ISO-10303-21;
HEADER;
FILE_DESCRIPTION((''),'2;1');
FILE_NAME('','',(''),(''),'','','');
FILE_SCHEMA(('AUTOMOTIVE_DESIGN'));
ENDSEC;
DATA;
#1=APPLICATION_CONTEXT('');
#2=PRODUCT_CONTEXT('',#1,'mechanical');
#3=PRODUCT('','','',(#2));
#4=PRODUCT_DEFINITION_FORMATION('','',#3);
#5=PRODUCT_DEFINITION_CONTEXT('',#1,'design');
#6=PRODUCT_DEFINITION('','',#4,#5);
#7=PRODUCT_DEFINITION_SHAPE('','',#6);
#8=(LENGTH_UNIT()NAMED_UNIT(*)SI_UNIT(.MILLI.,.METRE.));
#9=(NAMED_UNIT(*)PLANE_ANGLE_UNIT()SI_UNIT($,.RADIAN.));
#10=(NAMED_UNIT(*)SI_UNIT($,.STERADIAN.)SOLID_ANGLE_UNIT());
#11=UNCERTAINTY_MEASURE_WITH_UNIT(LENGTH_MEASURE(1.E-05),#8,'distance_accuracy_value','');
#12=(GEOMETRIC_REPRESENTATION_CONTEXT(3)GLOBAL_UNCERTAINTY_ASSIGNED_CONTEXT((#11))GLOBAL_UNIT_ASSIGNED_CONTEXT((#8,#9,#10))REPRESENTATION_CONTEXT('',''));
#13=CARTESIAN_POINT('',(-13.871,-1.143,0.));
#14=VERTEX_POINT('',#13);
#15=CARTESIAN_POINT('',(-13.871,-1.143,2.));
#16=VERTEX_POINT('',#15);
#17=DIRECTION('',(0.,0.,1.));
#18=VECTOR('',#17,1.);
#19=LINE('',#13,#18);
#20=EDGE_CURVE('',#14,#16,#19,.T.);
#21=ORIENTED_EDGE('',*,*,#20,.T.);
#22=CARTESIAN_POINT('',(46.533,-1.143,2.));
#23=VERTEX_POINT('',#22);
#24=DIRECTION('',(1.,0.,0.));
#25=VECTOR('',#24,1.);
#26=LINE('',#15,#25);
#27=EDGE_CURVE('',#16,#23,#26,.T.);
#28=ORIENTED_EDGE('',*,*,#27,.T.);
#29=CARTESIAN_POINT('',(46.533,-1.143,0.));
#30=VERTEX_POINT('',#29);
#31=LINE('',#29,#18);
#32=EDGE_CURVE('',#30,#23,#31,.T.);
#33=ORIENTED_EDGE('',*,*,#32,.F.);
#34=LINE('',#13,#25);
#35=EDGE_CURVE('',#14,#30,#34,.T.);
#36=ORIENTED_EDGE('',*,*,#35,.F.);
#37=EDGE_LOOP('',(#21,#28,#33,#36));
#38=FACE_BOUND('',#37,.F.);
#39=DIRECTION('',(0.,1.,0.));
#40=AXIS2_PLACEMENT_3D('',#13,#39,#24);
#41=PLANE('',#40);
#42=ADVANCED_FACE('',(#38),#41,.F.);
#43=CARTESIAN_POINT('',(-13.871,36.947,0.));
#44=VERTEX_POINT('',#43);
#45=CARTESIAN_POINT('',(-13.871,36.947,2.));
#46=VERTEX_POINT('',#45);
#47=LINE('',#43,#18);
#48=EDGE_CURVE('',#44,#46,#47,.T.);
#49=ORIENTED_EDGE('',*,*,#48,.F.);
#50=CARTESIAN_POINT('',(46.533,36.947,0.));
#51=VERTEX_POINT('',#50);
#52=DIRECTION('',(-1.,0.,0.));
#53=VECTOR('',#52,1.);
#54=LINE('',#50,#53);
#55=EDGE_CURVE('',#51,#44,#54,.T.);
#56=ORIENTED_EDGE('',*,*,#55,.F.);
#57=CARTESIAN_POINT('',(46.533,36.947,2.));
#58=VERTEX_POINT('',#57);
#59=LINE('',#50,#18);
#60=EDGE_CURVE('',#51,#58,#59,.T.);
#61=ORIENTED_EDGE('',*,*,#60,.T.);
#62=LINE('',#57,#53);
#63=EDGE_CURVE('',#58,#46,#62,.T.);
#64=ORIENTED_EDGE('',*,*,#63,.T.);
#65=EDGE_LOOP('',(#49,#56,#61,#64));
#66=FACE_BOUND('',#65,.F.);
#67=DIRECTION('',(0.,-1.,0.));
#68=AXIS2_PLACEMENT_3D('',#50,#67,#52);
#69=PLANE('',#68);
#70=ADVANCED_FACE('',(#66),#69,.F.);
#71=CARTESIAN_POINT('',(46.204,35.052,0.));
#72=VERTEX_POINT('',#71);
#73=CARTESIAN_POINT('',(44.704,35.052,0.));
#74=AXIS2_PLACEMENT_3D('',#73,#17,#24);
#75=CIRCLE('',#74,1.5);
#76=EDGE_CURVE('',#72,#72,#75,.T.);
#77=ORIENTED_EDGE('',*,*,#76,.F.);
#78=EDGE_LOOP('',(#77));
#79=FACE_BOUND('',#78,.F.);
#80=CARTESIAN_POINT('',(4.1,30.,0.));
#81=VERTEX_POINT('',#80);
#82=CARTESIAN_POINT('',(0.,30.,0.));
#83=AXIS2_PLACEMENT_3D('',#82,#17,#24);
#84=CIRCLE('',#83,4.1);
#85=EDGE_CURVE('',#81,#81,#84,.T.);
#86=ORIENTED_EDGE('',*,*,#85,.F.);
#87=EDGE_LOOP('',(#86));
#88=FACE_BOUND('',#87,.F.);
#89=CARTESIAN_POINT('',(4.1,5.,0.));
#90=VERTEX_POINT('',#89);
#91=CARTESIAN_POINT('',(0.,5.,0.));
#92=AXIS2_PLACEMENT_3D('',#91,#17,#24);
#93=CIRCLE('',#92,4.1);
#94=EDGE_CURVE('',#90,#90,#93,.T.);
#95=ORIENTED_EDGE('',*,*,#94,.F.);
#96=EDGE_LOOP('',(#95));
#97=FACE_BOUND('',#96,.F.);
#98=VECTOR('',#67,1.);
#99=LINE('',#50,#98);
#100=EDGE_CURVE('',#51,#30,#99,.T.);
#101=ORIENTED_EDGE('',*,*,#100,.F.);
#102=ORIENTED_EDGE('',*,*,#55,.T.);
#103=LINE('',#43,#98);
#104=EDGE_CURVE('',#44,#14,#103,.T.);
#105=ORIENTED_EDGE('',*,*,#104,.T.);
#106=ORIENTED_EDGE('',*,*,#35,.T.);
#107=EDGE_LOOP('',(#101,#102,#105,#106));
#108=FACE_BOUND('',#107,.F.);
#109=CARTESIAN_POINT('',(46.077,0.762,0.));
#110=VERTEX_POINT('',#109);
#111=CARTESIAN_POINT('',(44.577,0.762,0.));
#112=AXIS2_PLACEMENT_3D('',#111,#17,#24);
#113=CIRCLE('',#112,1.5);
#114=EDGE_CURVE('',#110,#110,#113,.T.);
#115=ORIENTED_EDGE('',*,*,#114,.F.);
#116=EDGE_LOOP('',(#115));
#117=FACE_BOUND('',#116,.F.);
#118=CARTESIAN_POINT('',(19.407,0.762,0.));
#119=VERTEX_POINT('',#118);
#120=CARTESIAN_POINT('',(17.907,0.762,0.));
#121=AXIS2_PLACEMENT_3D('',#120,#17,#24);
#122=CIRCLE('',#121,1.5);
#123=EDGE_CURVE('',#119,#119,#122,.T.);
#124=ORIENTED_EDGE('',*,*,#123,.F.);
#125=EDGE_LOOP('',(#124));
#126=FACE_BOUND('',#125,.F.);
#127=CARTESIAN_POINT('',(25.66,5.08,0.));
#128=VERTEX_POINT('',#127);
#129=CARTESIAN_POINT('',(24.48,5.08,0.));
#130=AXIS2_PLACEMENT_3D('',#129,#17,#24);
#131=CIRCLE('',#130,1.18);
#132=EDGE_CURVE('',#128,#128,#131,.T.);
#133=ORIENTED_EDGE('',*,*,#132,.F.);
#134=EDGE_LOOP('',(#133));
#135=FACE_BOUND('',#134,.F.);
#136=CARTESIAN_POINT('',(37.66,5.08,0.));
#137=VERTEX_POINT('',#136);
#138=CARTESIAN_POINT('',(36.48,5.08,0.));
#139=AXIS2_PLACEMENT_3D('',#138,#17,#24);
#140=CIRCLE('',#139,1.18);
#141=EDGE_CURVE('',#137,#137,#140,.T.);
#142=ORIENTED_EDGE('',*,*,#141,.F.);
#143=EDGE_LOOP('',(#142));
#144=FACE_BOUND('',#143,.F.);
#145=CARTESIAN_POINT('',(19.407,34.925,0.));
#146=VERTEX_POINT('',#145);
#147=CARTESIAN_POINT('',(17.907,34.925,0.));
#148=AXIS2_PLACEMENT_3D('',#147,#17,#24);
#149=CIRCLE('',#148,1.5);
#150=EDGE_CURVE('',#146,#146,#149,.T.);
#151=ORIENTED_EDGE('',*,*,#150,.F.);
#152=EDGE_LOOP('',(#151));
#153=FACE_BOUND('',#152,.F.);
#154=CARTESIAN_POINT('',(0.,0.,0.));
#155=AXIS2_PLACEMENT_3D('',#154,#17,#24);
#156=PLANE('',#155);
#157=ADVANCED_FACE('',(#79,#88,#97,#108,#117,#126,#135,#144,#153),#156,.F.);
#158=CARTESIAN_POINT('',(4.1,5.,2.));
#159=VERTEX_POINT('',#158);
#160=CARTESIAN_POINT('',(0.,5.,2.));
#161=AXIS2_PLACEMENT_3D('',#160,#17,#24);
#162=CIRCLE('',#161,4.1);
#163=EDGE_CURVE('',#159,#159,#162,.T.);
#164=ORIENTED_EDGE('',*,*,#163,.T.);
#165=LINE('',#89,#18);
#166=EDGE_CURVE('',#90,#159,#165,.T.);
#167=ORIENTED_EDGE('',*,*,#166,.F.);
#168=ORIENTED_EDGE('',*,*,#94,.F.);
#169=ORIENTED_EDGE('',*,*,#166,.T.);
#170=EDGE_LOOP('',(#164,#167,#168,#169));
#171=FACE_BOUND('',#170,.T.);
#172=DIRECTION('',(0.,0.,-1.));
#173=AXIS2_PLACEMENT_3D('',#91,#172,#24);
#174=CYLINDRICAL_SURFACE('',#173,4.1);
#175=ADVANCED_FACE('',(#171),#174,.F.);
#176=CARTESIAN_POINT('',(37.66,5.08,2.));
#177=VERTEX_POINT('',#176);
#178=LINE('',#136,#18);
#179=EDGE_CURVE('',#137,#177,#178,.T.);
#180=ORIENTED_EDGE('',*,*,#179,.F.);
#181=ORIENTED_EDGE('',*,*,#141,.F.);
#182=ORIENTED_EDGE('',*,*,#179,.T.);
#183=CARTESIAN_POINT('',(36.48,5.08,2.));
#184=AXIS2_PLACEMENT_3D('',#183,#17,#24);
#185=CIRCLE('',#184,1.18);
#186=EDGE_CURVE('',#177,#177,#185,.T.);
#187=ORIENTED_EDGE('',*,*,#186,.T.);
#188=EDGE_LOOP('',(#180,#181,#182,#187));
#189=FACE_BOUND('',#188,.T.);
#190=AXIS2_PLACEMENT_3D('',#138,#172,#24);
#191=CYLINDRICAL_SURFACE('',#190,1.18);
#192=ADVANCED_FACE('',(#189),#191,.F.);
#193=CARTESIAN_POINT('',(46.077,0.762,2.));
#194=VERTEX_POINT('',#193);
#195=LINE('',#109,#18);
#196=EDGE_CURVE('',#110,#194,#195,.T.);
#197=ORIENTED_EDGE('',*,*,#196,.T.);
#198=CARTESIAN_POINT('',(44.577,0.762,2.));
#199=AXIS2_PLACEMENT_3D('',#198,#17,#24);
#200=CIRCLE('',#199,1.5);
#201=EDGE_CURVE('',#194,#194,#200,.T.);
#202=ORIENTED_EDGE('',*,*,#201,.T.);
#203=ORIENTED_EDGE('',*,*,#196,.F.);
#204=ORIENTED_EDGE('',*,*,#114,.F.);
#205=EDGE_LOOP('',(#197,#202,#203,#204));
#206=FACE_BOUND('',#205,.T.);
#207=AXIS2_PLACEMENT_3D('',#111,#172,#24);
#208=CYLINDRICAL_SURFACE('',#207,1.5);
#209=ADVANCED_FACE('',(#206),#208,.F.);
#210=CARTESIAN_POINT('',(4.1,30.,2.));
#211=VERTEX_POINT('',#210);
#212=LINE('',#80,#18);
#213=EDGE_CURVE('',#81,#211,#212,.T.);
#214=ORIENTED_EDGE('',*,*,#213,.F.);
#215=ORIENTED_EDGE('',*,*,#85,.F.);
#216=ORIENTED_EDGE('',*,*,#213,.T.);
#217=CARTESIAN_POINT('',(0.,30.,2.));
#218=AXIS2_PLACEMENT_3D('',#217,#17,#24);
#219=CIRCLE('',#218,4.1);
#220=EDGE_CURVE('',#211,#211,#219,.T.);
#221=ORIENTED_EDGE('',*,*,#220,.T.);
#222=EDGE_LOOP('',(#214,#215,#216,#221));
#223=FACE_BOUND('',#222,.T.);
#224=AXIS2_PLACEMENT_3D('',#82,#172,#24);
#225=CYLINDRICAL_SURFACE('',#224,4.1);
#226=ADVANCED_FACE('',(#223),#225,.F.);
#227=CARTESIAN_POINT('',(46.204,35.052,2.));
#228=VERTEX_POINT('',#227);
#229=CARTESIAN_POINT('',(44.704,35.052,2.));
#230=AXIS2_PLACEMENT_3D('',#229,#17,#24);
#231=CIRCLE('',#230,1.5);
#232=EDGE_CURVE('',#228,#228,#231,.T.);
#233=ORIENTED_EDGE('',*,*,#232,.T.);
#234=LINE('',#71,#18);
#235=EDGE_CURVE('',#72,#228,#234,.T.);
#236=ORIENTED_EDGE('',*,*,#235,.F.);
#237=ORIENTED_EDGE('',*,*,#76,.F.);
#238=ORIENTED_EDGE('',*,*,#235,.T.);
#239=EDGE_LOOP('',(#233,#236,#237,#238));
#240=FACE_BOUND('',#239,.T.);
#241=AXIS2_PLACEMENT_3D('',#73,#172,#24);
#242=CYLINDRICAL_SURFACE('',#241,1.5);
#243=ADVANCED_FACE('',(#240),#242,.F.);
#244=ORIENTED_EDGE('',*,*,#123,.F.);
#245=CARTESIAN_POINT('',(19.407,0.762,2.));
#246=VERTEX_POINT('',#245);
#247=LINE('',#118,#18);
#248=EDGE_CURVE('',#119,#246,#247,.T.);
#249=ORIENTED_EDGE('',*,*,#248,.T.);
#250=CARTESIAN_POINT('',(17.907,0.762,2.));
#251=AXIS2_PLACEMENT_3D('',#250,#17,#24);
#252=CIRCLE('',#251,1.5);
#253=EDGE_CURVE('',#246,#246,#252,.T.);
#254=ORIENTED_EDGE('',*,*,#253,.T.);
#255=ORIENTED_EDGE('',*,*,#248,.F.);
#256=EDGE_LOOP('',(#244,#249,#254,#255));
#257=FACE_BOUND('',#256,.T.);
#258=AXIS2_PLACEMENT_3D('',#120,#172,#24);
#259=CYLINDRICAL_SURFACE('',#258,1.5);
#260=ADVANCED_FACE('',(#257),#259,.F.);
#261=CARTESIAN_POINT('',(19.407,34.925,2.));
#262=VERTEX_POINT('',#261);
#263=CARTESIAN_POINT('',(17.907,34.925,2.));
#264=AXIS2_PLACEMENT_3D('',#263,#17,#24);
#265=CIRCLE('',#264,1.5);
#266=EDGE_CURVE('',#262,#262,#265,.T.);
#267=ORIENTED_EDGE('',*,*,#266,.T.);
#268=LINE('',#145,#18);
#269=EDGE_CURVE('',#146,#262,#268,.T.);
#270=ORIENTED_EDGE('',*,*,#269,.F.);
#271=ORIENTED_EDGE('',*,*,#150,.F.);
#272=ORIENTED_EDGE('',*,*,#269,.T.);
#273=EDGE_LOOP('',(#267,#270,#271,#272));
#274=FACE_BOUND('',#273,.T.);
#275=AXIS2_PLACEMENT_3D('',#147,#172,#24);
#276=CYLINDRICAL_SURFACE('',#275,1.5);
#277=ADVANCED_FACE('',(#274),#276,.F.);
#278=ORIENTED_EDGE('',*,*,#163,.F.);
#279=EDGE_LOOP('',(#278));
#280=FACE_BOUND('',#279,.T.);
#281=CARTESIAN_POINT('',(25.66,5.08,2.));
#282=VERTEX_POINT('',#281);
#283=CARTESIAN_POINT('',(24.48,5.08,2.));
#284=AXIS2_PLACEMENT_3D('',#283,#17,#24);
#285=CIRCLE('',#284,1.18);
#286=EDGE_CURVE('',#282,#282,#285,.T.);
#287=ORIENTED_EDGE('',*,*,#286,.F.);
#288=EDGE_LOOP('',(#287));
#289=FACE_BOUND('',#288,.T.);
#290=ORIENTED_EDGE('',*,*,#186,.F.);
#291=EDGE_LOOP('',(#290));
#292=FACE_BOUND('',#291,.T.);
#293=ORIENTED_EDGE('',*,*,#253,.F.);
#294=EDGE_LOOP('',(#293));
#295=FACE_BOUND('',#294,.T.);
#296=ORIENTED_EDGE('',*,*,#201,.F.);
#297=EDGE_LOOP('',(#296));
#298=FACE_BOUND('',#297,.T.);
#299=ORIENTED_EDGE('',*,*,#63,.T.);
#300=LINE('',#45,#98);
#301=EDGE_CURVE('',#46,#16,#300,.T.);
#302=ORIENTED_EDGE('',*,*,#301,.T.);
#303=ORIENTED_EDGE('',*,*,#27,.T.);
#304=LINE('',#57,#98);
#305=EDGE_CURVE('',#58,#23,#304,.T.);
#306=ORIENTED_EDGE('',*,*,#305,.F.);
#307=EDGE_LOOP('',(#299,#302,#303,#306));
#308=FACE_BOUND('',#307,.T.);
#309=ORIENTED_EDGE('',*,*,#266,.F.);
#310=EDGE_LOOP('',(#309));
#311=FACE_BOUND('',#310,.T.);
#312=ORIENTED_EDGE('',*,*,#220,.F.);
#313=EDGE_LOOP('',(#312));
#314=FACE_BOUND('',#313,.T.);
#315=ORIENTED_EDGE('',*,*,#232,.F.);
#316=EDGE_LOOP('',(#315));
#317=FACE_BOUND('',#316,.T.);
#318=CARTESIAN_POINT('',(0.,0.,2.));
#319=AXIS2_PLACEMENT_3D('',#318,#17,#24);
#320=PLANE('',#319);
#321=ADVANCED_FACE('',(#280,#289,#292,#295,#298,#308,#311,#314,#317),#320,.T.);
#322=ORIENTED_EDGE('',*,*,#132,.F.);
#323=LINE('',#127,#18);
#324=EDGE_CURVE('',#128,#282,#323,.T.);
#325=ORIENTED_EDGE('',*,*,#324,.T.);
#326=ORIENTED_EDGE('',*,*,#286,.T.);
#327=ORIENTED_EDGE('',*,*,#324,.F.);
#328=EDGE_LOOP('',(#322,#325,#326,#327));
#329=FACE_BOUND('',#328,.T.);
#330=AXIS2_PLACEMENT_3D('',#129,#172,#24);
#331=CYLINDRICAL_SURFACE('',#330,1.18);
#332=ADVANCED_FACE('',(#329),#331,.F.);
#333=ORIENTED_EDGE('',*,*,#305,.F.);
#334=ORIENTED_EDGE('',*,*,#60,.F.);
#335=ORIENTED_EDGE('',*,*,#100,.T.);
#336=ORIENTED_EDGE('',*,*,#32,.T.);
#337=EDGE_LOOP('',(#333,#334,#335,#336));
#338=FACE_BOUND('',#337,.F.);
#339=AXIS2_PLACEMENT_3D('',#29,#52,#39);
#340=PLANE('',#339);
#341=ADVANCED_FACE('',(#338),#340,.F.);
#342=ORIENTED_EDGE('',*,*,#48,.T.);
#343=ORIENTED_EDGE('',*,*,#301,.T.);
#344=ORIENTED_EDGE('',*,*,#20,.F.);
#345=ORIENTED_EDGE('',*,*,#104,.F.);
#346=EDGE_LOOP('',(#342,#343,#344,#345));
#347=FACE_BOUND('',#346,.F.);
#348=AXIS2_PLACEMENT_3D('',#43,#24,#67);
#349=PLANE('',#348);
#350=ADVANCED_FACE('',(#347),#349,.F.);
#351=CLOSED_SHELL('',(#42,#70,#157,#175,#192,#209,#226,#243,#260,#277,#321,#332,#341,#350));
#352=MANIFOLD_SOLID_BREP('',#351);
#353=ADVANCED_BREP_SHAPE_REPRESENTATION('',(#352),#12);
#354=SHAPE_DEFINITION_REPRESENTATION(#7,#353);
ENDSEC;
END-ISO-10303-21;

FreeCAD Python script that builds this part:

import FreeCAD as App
import Part
import Sketcher

V = App.Vector
Q = App.Units.Quantity

doc = App.newDocument("Part")
body = doc.addObject("PartDesign::Body", "Body")

sketch1 = body.newObject("Sketcher::SketchObject", "Sketch")
sketch1.AttachmentSupport = (doc.getObject("XY_Plane"), [""])
sketch1.MapMode = "FlatFace"
sketch1.addGeometry(Part.LineSegment(V(46.533, -1.143, 0), V(46.533, 36.947, 0)), False)
sketch1.addGeometry(Part.LineSegment(V(46.533, 36.947, 0), V(-13.871, 36.947, 0)), False)
sketch1.addGeometry(Part.LineSegment(V(-13.871, 36.947, 0), V(-13.871, -1.143, 0)), False)
sketch1.addGeometry(Part.LineSegment(V(-13.871, -1.143, 0), V(46.533, -1.143, 0)), False)
sketch1.addGeometry(Part.Circle(V(44.704, 35.052, 0), V(0, 0, 1), 1.5), False)
sketch1.addGeometry(Part.Circle(V(17.907, 0.762, 0), V(0, 0, 1), 1.5), False)
sketch1.addGeometry(Part.Circle(V(44.577, 0.762, 0), V(0, 0, 1), 1.5), False)
sketch1.addGeometry(Part.Circle(V(0, 30, 0), V(0, 0, 1), 4.1), False)
sketch1.addGeometry(Part.Circle(V(17.907, 34.925, 0), V(0, 0, 1), 1.5), False)
sketch1.addGeometry(Part.Circle(V(24.48, 5.08, 0), V(0, 0, 1), 1.18), False)
sketch1.addGeometry(Part.Circle(V(0, 5, 0), V(0, 0, 1), 4.1), False)
sketch1.addGeometry(Part.Circle(V(36.48, 5.08, 0), V(0, 0, 1), 1.18), False)
sketch1.addConstraint(Sketcher.Constraint("Coincident", 0, 2, 1, 1))
sketch1.addConstraint(Sketcher.Constraint("Coincident", 1, 2, 2, 1))
sketch1.addConstraint(Sketcher.Constraint("Coincident", 2, 2, 3, 1))
sketch1.addConstraint(Sketcher.Constraint("Coincident", 3, 2, 0, 1))
sketch1.addConstraint(Sketcher.Constraint("Vertical", 0))
sketch1.addConstraint(Sketcher.Constraint("Horizontal", 1))
sketch1.addConstraint(Sketcher.Constraint("Vertical", 2))
sketch1.addConstraint(Sketcher.Constraint("Horizontal", 3))
sketch1.addConstraint(Sketcher.Constraint("Equal", 4, 5))
sketch1.addConstraint(Sketcher.Constraint("Equal", 5, 6))
sketch1.addConstraint(Sketcher.Constraint("Equal", 6, 8))
sketch1.addConstraint(Sketcher.Constraint("Equal", 7, 10))
sketch1.addConstraint(Sketcher.Constraint("Equal", 9, 11))
sketch1.addConstraint(Sketcher.Constraint("PointOnObject", 7, 3, -2))
sketch1.addConstraint(Sketcher.Constraint("PointOnObject", 10, 3, -2))
sketch1.addConstraint(Sketcher.Constraint("Horizontal", 5, 3, 6, 3))
sketch1.addConstraint(Sketcher.Constraint("Horizontal", 9, 3, 11, 3))
sketch1.addConstraint(Sketcher.Constraint("Vertical", 5, 3, 8, 3))
sketch1.addConstraint(Sketcher.Constraint("Diameter", 4, Q("3 mm")))
sketch1.addConstraint(Sketcher.Constraint("Diameter", 7, Q("8.2 mm")))
sketch1.addConstraint(Sketcher.Constraint("Diameter", 9, Q("2.36 mm")))
sketch1.addConstraint(Sketcher.Constraint("DistanceY", -1, 1, 7, 3, Q("30 mm")))
sketch1.addConstraint(Sketcher.Constraint("DistanceY", -1, 1, 10, 3, Q("5 mm")))
sketch1.addConstraint(Sketcher.Constraint("DistanceX", 9, 3, 11, 3, Q("12 mm")))
sketch1.addConstraint(Sketcher.Constraint("DistanceY", 0, 1, 0, 2, Q("38.09 mm")))
sketch1.addConstraint(Sketcher.Constraint("DistanceX", 1, 2, 1, 1, Q("60.404 mm")))
sketch1.addConstraint(Sketcher.Constraint("DistanceX", -1, 1, 9, 3, Q("24.48 mm")))
sketch1.addConstraint(Sketcher.Constraint("DistanceY", -1, 1, 9, 3, Q("5.08 mm")))
sketch1.addConstraint(Sketcher.Constraint("DistanceY", 5, 3, 4, 3, Q("34.29 mm")))
sketch1.addConstraint(Sketcher.Constraint("DistanceX", 5, 3, 6, 3, Q("26.67 mm")))
sketch1.addConstraint(Sketcher.Constraint("DistanceX", -1, 1, 4, 3, Q("44.704 mm")))
sketch1.addConstraint(Sketcher.Constraint("DistanceY", -1, 1, 4, 3, Q("35.052 mm")))
sketch1.addConstraint(Sketcher.Constraint("DistanceX", -1, 1, 5, 3, Q("17.907 mm")))
sketch1.addConstraint(Sketcher.Constraint("DistanceY", -1, 1, 8, 3, Q("34.925 mm")))
sketch1.addConstraint(Sketcher.Constraint("DistanceX", -1, 1, 0, 2, Q("46.533 mm")))
sketch1.addConstraint(Sketcher.Constraint("DistanceY", -1, 1, 0, 2, Q("36.947 mm")))
pad1 = body.newObject("PartDesign::Pad", "Pad")
pad1.Profile = sketch1
pad1.Length = 2

doc.recompute()
